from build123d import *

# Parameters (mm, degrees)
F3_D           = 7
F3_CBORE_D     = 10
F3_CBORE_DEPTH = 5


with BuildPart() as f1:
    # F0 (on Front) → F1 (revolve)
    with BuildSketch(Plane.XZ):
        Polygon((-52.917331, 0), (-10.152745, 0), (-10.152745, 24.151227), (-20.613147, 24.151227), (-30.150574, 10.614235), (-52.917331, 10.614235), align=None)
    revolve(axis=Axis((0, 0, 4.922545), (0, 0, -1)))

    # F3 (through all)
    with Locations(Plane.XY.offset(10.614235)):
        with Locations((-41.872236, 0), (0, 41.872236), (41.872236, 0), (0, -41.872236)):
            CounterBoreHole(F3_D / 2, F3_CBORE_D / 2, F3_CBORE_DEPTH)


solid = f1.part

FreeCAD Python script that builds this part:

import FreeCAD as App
import Part
import Sketcher

V = App.Vector
Q = App.Units.Quantity

doc = App.newDocument("Part")
body = doc.addObject("PartDesign::Body", "Body")

sketch1 = doc.addObject("Sketcher::SketchObject", "Sketch")
body.addObject(sketch1)
sketch1.AttachmentSupport = (doc.XZ_Plane, [""])
sketch1.MapMode = "FlatFace"
sketch1.addGeometry([
    Part.LineSegment(V(-52.917331, 0, 0), V(-10.152745, 0, 0)),
    Part.LineSegment(V(-10.152745, 0, 0), V(-10.152745, 24.151227, 0)),
    Part.LineSegment(V(-10.152745, 24.151227, 0), V(-20.613147, 24.151227, 0)),
    Part.LineSegment(V(-20.613147, 24.151227, 0), V(-30.150574, 10.614235, 0)),
    Part.LineSegment(V(-30.150574, 10.614235, 0), V(-52.917331, 10.614235, 0)),
    Part.LineSegment(V(-52.917331, 10.614235, 0), V(-52.917331, 0, 0)),
], False)
sketch1.addConstraint([
    Sketcher.Constraint("Coincident", 0, 2, 1, 1),
    Sketcher.Constraint("Coincident", 1, 2, 2, 1),
    Sketcher.Constraint("Coincident", 2, 2, 3, 1),
    Sketcher.Constraint("Coincident", 3, 2, 4, 1),
    Sketcher.Constraint("Coincident", 4, 2, 5, 1),
    Sketcher.Constraint("Coincident", 5, 2, 0, 1),
    Sketcher.Constraint("Horizontal", 0),
    Sketcher.Constraint("Vertical", 1),
    Sketcher.Constraint("Horizontal", 2),
    Sketcher.Constraint("Horizontal", 4),
    Sketcher.Constraint("Vertical", 5),
    Sketcher.Constraint("PointOnObject", 0, 2, -1),
    Sketcher.Constraint("DistanceX", 0, 1, 0, 2, Q("42.764586 mm")),
    Sketcher.Constraint("DistanceX", 2, 2, 2, 1, Q("10.460402 mm")),
    Sketcher.Constraint("DistanceX", 4, 2, 4, 1, Q("22.766757 mm")),
    Sketcher.Constraint("DistanceY", 1, 1, 1, 2, Q("24.151227 mm")),
    Sketcher.Constraint("DistanceY", 5, 2, 5, 1, Q("10.614235 mm")),
    Sketcher.Constraint("DistanceX", 4, 2, -1, 1, Q("52.917331 mm")),
])
revolution = doc.addObject("PartDesign::Revolution", "Revolution")
body.addObject(revolution)
revolution.Profile = sketch1
revolution.ReferenceAxis = (sketch1, ["V_Axis"])
revolution.Angle = 360

sketch2 = doc.addObject("Sketcher::SketchObject", "Sketch001")
body.addObject(sketch2)
sketch2.AttachmentSupport = (doc.XY_Plane, [""])
sketch2.MapMode = "FlatFace"
sketch2.AttachmentOffset = App.Placement(V(0, 0, 10.614235), App.Rotation())
sketch2.addGeometry([
    Part.Circle(V(-41.872236, 0, 0), V(0, 0, 1), 3.5),
    Part.Circle(V(0, 41.872236, 0), V(0, 0, 1), 3.5),
    Part.Circle(V(41.872236, 0, 0), V(0, 0, 1), 3.5),
    Part.Circle(V(0, -41.872236, 0), V(0, 0, 1), 3.5),
], False)
sketch2.addConstraint([
    Sketcher.Constraint("Equal", 0, 1),
    Sketcher.Constraint("Equal", 1, 2),
    Sketcher.Constraint("Equal", 2, 3),
    Sketcher.Constraint("Symmetric", 0, 3, 2, 3, -1, 1),
    Sketcher.Constraint("Symmetric", 1, 3, 3, 3, -1, 1),
    Sketcher.Constraint("PointOnObject", 0, 3, -1),
    Sketcher.Constraint("PointOnObject", 1, 3, -2),
    Sketcher.Constraint("Diameter", 0, Q("7 mm")),
    Sketcher.Constraint("DistanceX", 0, 3, 2, 3, Q("83.744472 mm")),
    Sketcher.Constraint("DistanceY", 3, 3, 1, 3, Q("83.744472 mm")),
])
doc.recompute()
hole = doc.addObject("PartDesign::Hole", "Hole")
body.addObject(hole)
hole.Profile = sketch2
hole.ThreadType = "None"
hole.Diameter = 7
hole.DepthType = "ThroughAll"
hole.HoleCutType = "Counterbore"
hole.HoleCutDiameter = 10
hole.HoleCutDepth = 5

doc.recompute()
